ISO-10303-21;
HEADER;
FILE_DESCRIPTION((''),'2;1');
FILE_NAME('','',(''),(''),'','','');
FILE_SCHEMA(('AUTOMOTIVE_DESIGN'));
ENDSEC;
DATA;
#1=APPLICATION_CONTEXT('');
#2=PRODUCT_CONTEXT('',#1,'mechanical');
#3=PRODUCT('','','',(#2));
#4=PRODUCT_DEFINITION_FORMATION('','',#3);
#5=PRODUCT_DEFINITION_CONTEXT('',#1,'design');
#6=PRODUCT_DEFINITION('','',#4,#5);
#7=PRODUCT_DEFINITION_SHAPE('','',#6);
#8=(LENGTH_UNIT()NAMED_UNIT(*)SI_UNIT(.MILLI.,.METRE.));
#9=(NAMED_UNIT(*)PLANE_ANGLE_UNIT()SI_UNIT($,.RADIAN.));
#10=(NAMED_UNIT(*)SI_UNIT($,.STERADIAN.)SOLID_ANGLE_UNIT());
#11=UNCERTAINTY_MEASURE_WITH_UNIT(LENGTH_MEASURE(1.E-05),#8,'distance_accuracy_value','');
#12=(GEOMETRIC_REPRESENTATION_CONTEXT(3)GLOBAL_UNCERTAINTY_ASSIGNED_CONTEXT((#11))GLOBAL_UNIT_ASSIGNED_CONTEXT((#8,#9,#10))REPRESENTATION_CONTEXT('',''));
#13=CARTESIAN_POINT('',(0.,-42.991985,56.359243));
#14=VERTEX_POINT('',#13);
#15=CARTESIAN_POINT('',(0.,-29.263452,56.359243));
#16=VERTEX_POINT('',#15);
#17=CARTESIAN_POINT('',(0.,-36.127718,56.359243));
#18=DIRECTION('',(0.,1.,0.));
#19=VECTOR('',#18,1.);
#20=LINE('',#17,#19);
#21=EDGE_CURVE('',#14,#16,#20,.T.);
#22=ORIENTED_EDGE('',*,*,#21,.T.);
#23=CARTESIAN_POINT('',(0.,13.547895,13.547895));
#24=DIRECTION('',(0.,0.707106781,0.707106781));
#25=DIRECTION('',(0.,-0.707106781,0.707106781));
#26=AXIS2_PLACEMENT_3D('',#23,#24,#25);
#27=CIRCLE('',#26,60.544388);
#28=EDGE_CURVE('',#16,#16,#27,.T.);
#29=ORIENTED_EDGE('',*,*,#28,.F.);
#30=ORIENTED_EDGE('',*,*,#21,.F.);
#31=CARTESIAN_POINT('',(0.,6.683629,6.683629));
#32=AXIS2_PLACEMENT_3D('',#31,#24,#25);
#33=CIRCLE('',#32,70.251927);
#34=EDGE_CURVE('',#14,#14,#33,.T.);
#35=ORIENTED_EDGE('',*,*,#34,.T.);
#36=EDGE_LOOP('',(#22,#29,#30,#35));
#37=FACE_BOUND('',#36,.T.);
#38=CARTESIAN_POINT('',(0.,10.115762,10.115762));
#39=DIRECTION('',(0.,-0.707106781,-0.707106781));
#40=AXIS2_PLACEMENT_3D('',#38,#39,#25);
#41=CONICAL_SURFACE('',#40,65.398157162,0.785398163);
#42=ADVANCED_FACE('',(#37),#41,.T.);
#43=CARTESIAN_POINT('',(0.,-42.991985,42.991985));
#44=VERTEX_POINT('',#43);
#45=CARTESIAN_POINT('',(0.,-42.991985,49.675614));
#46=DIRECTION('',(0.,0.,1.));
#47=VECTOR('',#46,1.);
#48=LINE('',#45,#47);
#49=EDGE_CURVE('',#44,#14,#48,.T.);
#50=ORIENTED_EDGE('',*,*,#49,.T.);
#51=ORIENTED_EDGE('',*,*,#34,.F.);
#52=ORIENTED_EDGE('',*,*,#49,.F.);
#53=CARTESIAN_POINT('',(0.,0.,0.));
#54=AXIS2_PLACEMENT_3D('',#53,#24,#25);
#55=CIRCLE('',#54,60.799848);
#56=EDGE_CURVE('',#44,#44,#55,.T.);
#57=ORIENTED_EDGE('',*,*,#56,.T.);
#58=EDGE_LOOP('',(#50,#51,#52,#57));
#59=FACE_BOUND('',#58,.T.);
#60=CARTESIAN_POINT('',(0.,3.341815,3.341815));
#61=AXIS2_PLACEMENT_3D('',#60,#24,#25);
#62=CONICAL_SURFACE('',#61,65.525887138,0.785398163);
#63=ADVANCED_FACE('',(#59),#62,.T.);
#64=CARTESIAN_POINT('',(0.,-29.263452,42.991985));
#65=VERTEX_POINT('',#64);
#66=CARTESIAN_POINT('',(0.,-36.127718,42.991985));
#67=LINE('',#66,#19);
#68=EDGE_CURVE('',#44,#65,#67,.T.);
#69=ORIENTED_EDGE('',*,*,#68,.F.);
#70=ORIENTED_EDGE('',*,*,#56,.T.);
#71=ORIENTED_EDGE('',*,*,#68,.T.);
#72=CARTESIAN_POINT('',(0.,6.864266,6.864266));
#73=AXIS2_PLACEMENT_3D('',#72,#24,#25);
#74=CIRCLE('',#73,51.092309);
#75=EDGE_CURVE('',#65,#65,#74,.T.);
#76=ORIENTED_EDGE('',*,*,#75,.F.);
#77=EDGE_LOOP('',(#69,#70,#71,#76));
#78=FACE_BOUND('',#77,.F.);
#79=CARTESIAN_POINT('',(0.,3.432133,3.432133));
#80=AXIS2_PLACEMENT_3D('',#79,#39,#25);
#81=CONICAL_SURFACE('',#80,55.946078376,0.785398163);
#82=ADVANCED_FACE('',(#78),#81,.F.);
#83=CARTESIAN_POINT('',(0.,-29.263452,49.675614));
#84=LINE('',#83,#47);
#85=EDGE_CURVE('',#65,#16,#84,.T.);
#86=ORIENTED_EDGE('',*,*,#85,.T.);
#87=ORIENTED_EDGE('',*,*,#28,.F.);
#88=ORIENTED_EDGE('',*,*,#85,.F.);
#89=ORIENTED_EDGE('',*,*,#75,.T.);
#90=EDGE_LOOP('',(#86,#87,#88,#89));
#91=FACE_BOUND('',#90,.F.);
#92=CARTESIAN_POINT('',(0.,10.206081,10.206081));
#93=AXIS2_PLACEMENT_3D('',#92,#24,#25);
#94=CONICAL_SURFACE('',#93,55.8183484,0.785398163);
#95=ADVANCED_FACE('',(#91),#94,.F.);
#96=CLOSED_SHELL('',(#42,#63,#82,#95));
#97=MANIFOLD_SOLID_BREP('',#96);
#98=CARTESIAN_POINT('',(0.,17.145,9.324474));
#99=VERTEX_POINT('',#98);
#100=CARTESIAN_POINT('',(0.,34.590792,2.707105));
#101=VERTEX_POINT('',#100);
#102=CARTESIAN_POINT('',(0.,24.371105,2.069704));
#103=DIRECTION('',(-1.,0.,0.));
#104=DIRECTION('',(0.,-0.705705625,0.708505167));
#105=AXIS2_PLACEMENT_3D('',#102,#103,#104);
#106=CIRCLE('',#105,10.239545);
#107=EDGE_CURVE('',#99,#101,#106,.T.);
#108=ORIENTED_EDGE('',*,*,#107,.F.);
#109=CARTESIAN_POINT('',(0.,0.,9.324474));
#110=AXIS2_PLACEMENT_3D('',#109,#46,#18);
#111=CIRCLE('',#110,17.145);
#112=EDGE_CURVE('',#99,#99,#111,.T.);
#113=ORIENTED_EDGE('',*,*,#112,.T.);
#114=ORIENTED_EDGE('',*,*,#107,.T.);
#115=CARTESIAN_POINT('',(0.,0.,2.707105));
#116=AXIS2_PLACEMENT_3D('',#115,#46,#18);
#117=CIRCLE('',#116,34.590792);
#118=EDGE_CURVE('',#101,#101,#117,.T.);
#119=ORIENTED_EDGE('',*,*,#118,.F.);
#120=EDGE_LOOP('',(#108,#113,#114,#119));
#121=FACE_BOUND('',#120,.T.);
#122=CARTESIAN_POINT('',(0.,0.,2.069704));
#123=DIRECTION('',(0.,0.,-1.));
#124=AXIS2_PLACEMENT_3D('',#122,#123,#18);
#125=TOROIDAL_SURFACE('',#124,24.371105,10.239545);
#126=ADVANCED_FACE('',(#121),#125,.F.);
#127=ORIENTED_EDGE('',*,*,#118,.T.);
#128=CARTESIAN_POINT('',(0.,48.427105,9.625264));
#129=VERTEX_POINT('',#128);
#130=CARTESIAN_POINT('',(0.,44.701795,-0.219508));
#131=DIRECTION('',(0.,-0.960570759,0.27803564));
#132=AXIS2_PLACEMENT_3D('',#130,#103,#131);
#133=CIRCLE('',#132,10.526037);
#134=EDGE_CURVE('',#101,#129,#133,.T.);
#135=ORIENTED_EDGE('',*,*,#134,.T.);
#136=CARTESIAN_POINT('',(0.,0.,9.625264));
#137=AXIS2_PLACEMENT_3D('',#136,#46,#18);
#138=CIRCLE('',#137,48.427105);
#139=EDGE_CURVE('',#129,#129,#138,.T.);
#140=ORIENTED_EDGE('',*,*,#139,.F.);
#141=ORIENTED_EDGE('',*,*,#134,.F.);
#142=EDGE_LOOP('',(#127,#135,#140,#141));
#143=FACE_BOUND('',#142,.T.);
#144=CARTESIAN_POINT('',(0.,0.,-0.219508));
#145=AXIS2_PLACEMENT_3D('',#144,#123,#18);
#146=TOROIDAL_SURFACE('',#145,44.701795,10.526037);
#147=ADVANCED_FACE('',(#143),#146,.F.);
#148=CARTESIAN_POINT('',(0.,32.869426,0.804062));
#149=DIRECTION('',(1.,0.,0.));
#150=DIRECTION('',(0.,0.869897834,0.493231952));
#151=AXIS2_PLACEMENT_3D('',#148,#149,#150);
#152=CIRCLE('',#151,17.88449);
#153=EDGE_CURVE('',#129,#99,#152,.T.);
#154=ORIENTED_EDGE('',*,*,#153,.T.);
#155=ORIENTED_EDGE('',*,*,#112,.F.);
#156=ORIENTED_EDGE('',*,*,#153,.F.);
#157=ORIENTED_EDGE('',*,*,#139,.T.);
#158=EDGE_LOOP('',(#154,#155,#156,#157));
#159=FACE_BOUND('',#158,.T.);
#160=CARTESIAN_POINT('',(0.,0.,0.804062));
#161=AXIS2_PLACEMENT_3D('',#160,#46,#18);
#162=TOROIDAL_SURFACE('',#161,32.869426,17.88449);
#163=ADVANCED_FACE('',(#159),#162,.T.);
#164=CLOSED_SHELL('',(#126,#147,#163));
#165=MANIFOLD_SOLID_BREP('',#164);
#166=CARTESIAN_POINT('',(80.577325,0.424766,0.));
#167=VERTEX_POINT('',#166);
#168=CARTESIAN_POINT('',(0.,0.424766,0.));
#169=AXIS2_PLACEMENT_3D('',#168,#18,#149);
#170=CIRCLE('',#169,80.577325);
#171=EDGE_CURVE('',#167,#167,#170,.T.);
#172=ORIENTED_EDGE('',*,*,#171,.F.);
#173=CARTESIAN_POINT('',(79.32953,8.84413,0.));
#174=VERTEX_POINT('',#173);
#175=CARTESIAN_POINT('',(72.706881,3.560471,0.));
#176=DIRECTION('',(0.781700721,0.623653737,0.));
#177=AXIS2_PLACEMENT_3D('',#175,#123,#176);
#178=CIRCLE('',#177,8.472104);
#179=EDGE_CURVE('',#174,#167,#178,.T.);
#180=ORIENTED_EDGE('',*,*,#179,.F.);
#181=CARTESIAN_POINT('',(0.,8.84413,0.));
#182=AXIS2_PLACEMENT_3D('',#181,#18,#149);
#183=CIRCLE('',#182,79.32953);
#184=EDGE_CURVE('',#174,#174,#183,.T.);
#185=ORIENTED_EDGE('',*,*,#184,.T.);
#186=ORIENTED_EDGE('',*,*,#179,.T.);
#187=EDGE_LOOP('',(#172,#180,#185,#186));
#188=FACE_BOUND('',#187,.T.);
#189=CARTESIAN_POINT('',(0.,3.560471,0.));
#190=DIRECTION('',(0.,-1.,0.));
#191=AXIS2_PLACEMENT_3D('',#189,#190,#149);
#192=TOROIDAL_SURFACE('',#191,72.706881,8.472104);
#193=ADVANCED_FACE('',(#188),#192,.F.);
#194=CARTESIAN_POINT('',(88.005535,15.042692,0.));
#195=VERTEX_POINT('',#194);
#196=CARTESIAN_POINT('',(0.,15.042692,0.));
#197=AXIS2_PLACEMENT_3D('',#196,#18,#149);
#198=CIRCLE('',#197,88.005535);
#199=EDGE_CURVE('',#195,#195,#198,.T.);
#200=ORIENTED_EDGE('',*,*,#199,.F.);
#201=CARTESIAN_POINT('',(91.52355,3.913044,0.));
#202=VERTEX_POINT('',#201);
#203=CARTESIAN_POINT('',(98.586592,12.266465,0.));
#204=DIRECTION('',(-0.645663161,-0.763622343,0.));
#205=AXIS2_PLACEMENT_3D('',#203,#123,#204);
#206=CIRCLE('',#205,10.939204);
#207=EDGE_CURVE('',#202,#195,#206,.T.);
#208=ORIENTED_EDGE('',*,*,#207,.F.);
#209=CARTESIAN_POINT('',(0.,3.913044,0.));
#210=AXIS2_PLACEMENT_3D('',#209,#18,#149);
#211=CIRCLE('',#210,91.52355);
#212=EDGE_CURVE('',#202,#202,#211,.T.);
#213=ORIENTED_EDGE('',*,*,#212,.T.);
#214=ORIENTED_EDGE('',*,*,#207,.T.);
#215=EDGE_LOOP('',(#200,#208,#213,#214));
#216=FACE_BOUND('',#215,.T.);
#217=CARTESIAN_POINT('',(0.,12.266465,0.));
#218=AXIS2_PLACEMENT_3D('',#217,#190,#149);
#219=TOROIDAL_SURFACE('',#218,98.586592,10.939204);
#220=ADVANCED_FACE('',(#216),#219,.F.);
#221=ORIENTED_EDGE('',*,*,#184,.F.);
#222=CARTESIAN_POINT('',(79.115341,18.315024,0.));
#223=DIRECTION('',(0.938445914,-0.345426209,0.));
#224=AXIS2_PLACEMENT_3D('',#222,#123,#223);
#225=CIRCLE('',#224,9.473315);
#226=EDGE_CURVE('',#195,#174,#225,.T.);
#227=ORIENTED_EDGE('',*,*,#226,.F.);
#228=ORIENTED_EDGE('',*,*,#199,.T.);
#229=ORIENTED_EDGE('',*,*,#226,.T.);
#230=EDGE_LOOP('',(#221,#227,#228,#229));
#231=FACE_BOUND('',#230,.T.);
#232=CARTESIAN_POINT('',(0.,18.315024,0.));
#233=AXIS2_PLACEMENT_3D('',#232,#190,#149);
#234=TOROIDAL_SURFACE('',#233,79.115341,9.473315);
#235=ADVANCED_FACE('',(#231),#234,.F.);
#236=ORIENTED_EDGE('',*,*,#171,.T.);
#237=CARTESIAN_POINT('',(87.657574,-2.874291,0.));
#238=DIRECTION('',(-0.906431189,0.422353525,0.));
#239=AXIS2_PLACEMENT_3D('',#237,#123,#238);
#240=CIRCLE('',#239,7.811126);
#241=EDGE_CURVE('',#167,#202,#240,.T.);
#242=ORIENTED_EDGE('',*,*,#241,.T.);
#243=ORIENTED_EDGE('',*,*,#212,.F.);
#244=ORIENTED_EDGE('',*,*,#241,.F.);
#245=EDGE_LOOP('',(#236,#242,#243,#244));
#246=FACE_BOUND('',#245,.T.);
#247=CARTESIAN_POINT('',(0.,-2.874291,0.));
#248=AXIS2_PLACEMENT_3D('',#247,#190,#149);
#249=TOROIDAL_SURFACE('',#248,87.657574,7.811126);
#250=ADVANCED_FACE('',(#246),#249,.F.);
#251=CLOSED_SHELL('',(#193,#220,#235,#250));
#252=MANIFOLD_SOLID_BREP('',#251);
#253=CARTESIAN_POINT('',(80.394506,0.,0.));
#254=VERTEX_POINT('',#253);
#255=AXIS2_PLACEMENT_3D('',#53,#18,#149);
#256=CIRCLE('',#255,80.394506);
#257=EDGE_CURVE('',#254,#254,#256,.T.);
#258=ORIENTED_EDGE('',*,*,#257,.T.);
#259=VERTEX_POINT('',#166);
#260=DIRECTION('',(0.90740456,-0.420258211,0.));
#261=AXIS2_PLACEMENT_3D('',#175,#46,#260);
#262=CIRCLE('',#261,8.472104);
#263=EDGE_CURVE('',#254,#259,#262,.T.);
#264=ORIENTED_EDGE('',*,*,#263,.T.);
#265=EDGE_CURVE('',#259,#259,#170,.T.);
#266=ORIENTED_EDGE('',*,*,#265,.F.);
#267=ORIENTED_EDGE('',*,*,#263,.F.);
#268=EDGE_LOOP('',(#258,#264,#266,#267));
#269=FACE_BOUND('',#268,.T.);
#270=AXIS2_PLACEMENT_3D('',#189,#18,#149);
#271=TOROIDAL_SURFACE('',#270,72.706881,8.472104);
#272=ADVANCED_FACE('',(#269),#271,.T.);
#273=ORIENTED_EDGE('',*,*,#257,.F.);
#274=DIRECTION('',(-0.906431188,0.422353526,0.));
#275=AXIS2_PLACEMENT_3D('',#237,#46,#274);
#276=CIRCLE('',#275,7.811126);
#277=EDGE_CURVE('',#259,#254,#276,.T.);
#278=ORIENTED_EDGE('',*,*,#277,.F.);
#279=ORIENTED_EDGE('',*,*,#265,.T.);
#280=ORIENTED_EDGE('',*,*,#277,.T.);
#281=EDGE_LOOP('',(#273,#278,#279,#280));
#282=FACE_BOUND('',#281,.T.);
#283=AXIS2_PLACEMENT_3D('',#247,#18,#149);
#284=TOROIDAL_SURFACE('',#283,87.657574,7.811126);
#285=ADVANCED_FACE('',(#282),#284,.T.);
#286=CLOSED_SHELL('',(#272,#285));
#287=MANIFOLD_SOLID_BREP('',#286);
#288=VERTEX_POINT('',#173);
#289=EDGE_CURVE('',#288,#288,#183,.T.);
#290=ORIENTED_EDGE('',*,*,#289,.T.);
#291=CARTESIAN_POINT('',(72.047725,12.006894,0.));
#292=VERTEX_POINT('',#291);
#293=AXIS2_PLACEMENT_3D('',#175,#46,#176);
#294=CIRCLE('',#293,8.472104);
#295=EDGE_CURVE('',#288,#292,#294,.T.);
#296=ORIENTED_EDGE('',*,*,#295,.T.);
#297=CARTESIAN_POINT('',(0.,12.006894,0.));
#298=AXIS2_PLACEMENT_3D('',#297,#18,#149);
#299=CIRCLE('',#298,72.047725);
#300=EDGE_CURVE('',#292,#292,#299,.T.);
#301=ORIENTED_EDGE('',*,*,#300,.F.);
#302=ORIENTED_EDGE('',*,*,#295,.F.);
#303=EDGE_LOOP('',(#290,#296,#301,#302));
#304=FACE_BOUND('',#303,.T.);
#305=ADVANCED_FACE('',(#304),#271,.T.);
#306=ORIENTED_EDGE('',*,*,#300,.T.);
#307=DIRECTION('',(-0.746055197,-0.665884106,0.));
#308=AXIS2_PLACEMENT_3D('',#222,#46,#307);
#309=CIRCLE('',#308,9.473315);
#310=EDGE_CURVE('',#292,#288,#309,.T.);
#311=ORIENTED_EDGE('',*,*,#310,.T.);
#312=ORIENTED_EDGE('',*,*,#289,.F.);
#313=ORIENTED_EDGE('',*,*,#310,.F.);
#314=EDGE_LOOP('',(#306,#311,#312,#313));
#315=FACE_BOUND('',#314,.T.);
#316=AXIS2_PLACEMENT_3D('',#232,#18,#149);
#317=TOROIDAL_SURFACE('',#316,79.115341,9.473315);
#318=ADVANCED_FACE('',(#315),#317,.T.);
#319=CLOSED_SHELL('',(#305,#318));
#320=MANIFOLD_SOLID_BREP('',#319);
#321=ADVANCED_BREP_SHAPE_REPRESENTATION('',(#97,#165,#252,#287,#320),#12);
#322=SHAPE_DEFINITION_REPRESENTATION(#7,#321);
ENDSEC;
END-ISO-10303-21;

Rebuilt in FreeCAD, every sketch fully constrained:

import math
import FreeCAD as App
import Part
import Sketcher
from FreeCAD import Vector
Q = App.Units.Quantity


def add_polygon(sketch, points):
    """Adds a closed chain of lines whose ends are joined by coincident constraints."""
    first, n = sketch.GeometryCount, len(points)
    for a, b in zip(points, points[1:] + points[:1]):
        sketch.addGeometry(Part.LineSegment(App.Vector(*a, 0), App.Vector(*b, 0)), False)
    for i in range(n):
        sketch.addConstraint(Sketcher.Constraint("Coincident", first + i, 2, first + (i + 1) % n, 1))

doc = App.newDocument("Part")
params = doc.addObject("Spreadsheet::Sheet", "Params")
for row, (alias, value) in enumerate([
    ("revolution_angle", "360 deg"),
    ("revolution2_angle", "360 deg"),
    ("revolution3_angle", "360 deg"),
    ("revolution4_angle", "360 deg"),
    ("revolution5_angle", "360 deg"),
], start=1):
    params.set(f"A{row}", alias)
    params.set(f"B{row}", "=" + value)
    params.setAlias(f"B{row}", alias)

body = doc.addObject("PartDesign::Body", "Body")

# Sketch on YZ plane
sketch1 = body.newObject("Sketcher::SketchObject", "Sketch")
sketch1.AttachmentSupport = (doc.getObject("YZ_Plane"), [""])
sketch1.MapMode = "FlatFace"
sketch1.addGeometry([
    Part.ArcOfCircle(Part.Circle(Vector(24, 2, 0), Vector(0, 0, 1), 10), math.radians(4), math.radians(135)),
    Part.ArcOfCircle(Part.Circle(Vector(45, 0, 0), Vector(0, 0, 1), 11), math.radians(69), math.radians(164)),
    Part.ArcOfCircle(Part.Circle(Vector(33, 1, 0), Vector(0, 0, 1), 18), math.radians(30), math.radians(152)),
], False)
sketch1.addConstraint([
    Sketcher.Constraint("Coincident", 0, 1, 1, 2),
    Sketcher.Constraint("Coincident", 1, 1, 2, 1),
    Sketcher.Constraint("Coincident", 2, 2, 0, 2),
    Sketcher.Constraint("Radius", 2, 17.88449),
    Sketcher.Constraint("DistanceX", -1, 1, 2, 2, 17.145),
    Sketcher.Constraint("Radius", 0, 10.239545),
    Sketcher.Constraint("Radius", 1, 10.526037),
    Sketcher.Constraint("DistanceX", 0, 3, 1, 1, 24.056),
    Sketcher.Constraint("DistanceY", 0, 3, 0, 1, 0.637402),
    Sketcher.Constraint("DistanceY", 2, 3, 1, 1, 8.821202),
    Sketcher.Constraint("DistanceY", 1, 3, -1, 1, 0.219508),
    Sketcher.Constraint("DistanceY", -1, 1, 2, 3, 0.804062),
])
revolution = body.newObject("PartDesign::Revolution", "Revolution")
revolution.Profile = sketch1
revolution.ReferenceAxis = (sketch1, ["V_Axis"])
revolution.setExpression("Angle", "Params.revolution_angle")
body2 = doc.addObject("PartDesign::Body", "Body001")

# Sketch on XY plane
sketch2 = body2.newObject("Sketcher::SketchObject", "Sketch001")
sketch2.AttachmentSupport = (doc.getObject("XY_Plane001"), [""])
sketch2.MapMode = "FlatFace"
sketch2.addGeometry([
    Part.ArcOfCircle(Part.Circle(Vector(79, 18, 0), Vector(0, 0, 1), 9), math.radians(-138), math.radians(-89)),
    Part.ArcOfCircle(Part.Circle(Vector(73, 4, 0), Vector(0, 0, 1), 8), math.radians(39), math.radians(94)),
], False)
sketch2.addConstraint([
    Sketcher.Constraint("Coincident", 0, 1, 1, 2),
    Sketcher.Constraint("Coincident", 1, 1, 0, 2),
    Sketcher.Constraint("Radius", 0, 9.473315),
    Sketcher.Constraint("Radius", 1, 8.472104),
    Sketcher.Constraint("DistanceX", -1, 1, 0, 3, 79.115341),
    Sketcher.Constraint("DistanceX", -1, 1, 1, 3, 72.706881),
    Sketcher.Constraint("DistanceY", -1, 1, 1, 3, 3.560471),
    Sketcher.Constraint("DistanceX", -1, 1, 1, 1, 79.32953),
])
revolution2 = body2.newObject("PartDesign::Revolution", "Revolution001")
revolution2.Profile = sketch2
revolution2.ReferenceAxis = (sketch2, ["V_Axis"])
revolution2.setExpression("Angle", "Params.revolution2_angle")
body3 = doc.addObject("PartDesign::Body", "Body002")

# Sketch on XY plane
sketch3 = body3.newObject("Sketcher::SketchObject", "Sketch002")
sketch3.AttachmentSupport = (doc.getObject("XY_Plane002"), [""])
sketch3.MapMode = "FlatFace"
sketch3.addGeometry([
    Part.ArcOfCircle(Part.Circle(Vector(87.66, -2.87, 0), Vector(0, 0, 1), 7.81), math.radians(155.02), math.radians(158.41)),
    Part.ArcOfCircle(Part.Circle(Vector(72.71, 3.56, 0), Vector(0, 0, 1), 8.47), math.radians(-24.85), math.radians(-21.72)),
], False)
sketch3.addConstraint([
    Sketcher.Constraint("Coincident", 0, 1, 1, 2),
    Sketcher.Constraint("Coincident", 1, 1, 0, 2),
    Sketcher.Constraint("PointOnObject", 1, 1, -1),
    Sketcher.Constraint("Radius", 0, 7.811126),
    Sketcher.Constraint("Radius", 1, 8.472104),
    Sketcher.Constraint("DistanceY", 0, 3, -1, 1, 2.874291),
    Sketcher.Constraint("DistanceX", -1, 1, 1, 3, 72.706881),
    Sketcher.Constraint("DistanceY", -1, 1, 1, 3, 3.560471),
])
revolution3 = body3.newObject("PartDesign::Revolution", "Revolution002")
revolution3.Profile = sketch3
revolution3.ReferenceAxis = (sketch3, ["V_Axis"])
revolution3.setExpression("Angle", "Params.revolution3_angle")
body4 = doc.addObject("PartDesign::Body", "Body003")

# Sketch on XY plane
sketch4 = body4.newObject("Sketcher::SketchObject", "Sketch003")
sketch4.AttachmentSupport = (doc.getObject("XY_Plane003"), [""])
sketch4.MapMode = "FlatFace"
sketch4.addGeometry([
    Part.ArcOfCircle(Part.Circle(Vector(73, 4, 0), Vector(0, 0, 1), 8), math.radians(-22), math.radians(39)),
    Part.ArcOfCircle(Part.Circle(Vector(88, -3, 0), Vector(0, 0, 1), 8), math.radians(60), math.radians(155)),
    Part.ArcOfCircle(Part.Circle(Vector(99, 12, 0), Vector(0, 0, 1), 11), math.radians(165), math.radians(230)),
    Part.ArcOfCircle(Part.Circle(Vector(79, 18, 0), Vector(0, 0, 1), 9), math.radians(-89), math.radians(-20)),
], False)
sketch4.addConstraint([
    Sketcher.Constraint("Coincident", 0, 1, 1, 2),
    Sketcher.Constraint("Coincident", 1, 1, 2, 2),
    Sketcher.Constraint("Coincident", 2, 1, 3, 2),
    Sketcher.Constraint("Coincident", 3, 1, 0, 2),
    Sketcher.Constraint("Radius", 0, 8.472104),
    Sketcher.Constraint("Radius", 1, 7.811126),
    Sketcher.Constraint("Radius", 2, 10.939204),
    Sketcher.Constraint("Radius", 3, 9.473315),
    Sketcher.Constraint("DistanceY", 0, 1, 2, 3, 11.841699),
    Sketcher.Constraint("DistanceX", -1, 1, 0, 3, 72.706881),
    Sketcher.Constraint("DistanceY", -1, 1, 0, 3, 3.560471),
    Sketcher.Constraint("DistanceY", 1, 3, -1, 1, 2.874291),
    Sketcher.Constraint("DistanceX", -1, 1, 2, 3, 98.586592),
    Sketcher.Constraint("DistanceX", -1, 1, 3, 3, 79.115341),
    Sketcher.Constraint("DistanceX", -1, 1, 1, 1, 91.52355),
    Sketcher.Constraint("DistanceX", -1, 1, 3, 1, 79.32953),
])
revolution4 = body4.newObject("PartDesign::Revolution", "Revolution003")
revolution4.Profile = sketch4
revolution4.ReferenceAxis = (sketch4, ["V_Axis"])
revolution4.setExpression("Angle", "Params.revolution4_angle")
body5 = doc.addObject("PartDesign::Body", "Body004")

# Sketch on YZ plane
sketch5 = body5.newObject("Sketcher::SketchObject", "Sketch004")
sketch5.AttachmentSupport = (doc.getObject("YZ_Plane004"), [""])
sketch5.MapMode = "FlatFace"
add_polygon(sketch5, [(-43, 56), (-43, 43), (-29, 43), (-29, 56)])  # lines 0-3
sketch5.addGeometry(Part.LineSegment(Vector(0, 0, 0), Vector(14, 14, 0)), True)  # axis
sketch5.addConstraint([
    Sketcher.Constraint("Vertical", 0),
    Sketcher.Constraint("Horizontal", 1),
    Sketcher.Constraint("Vertical", 2),
    Sketcher.Constraint("Horizontal", 3),
    Sketcher.Constraint("Coincident", 4, 1, -1, 1),
    Sketcher.Constraint("Angle", 4, Q("45 deg")),
    Sketcher.Constraint("DistanceY", 0, 2, 0, 1, 13.367258),
    Sketcher.Constraint("DistanceX", 1, 1, 1, 2, 13.728533),
    Sketcher.Constraint("DistanceX", 1, 2, -1, 1, 29.263452),
    Sketcher.Constraint("DistanceY", 4, 2, 1, 2, 29.444089),
    Sketcher.Constraint("DistanceX", 0, 2, 4, 2, 56.53988),
])
revolution5 = body5.newObject("PartDesign::Revolution", "Revolution004")
revolution5.Profile = sketch5
revolution5.ReferenceAxis = (sketch5, ["Axis0"])
revolution5.setExpression("Angle", "Params.revolution5_angle")

doc.recompute()
